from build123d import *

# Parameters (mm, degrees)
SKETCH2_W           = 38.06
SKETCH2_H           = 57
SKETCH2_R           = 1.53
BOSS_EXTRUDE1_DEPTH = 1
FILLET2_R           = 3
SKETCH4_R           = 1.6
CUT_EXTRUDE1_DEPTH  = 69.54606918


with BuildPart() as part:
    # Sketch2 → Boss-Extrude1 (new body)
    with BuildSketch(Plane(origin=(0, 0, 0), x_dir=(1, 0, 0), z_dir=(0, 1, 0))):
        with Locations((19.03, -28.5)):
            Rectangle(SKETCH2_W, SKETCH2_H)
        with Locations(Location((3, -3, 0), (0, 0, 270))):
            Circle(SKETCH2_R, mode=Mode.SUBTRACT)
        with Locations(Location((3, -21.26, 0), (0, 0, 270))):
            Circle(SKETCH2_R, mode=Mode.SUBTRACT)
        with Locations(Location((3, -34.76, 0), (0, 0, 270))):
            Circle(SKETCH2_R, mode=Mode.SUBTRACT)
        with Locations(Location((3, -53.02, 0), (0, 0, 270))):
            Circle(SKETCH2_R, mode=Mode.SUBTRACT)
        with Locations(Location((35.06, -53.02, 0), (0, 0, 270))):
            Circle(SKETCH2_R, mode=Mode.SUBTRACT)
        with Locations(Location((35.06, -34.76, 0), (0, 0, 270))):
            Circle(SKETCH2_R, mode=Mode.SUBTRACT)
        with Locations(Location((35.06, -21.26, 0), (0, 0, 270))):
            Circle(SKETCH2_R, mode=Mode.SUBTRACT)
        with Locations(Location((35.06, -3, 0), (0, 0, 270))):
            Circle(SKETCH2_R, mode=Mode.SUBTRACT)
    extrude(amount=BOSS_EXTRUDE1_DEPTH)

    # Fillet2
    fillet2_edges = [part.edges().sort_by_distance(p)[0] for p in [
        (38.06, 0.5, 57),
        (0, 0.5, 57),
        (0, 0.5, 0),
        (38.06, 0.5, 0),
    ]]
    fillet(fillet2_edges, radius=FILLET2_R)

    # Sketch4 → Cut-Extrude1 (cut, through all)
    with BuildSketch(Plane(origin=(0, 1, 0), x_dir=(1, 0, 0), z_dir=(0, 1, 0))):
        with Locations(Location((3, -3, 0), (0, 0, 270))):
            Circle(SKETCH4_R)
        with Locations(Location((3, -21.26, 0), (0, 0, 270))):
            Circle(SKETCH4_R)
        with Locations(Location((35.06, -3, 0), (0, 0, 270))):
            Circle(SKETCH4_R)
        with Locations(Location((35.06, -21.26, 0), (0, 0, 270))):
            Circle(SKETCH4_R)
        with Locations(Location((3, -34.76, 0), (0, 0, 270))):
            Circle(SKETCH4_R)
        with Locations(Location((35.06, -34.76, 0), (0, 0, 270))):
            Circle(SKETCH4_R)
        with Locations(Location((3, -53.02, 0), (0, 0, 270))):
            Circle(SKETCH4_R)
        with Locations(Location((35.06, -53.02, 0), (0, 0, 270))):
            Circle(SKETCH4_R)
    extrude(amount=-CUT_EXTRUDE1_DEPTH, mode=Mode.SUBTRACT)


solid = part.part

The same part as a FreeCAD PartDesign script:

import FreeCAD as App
import Part
import Sketcher
from FreeCAD import Vector
Q = App.Units.Quantity


def edges_at(feature, points):
    """Names of the edges that pass closest to the given points."""
    edges = feature.Shape.Edges
    near = lambda p: min(range(len(edges)), key=lambda i: edges[i].distToShape(Part.Vertex(*p))[0])
    return sorted({f"Edge{near(p) + 1}" for p in points})

doc = App.newDocument("Part")
body = doc.addObject("PartDesign::Body", "Body")

# Sketch on XZ plane
sketch1 = body.newObject("Sketcher::SketchObject", "Sketch")
sketch1.AttachmentSupport = (doc.getObject("XZ_Plane"), [""])
sketch1.MapMode = "FlatFace"
sketch1.addGeometry(Part.LineSegment(Vector(0, 0, 0), Vector(0, 57, 0)), False)
sketch1.addGeometry(Part.LineSegment(Vector(0, 57, 0), Vector(38.1, 57, 0)), False)
sketch1.addGeometry(Part.LineSegment(Vector(38.1, 57, 0), Vector(38.1, 0, 0)), False)
sketch1.addGeometry(Part.LineSegment(Vector(38.1, 0, 0), Vector(0, 0, 0)), False)
sketch1.addGeometry(Part.Circle(Vector(3, 53, 0), Vector(0, 0, 1), 1.5), False)
sketch1.addGeometry(Part.Circle(Vector(3, 34.8, 0), Vector(0, 0, 1), 1.5), False)
sketch1.addGeometry(Part.Circle(Vector(35.1, 53, 0), Vector(0, 0, 1), 1.5), False)
sketch1.addGeometry(Part.Circle(Vector(35.1, 34.8, 0), Vector(0, 0, 1), 1.5), False)
sketch1.addGeometry(Part.Circle(Vector(3, 21.3, 0), Vector(0, 0, 1), 1.5), False)
sketch1.addGeometry(Part.Circle(Vector(3, 3, 0), Vector(0, 0, 1), 1.5), False)
sketch1.addGeometry(Part.Circle(Vector(35.1, 21.3, 0), Vector(0, 0, 1), 1.5), False)
sketch1.addGeometry(Part.Circle(Vector(35.1, 3, 0), Vector(0, 0, 1), 1.5), False)
sketch1.addConstraint(Sketcher.Constraint("Coincident", 0, 2, 1, 1))
sketch1.addConstraint(Sketcher.Constraint("Coincident", 1, 2, 2, 1))
sketch1.addConstraint(Sketcher.Constraint("Coincident", 2, 2, 3, 1))
sketch1.addConstraint(Sketcher.Constraint("Coincident", 3, 2, 0, 1))
sketch1.addConstraint(Sketcher.Constraint("Vertical", 0))
sketch1.addConstraint(Sketcher.Constraint("Horizontal", 1))
sketch1.addConstraint(Sketcher.Constraint("Vertical", 2))
sketch1.addConstraint(Sketcher.Constraint("Horizontal", 3))
sketch1.addConstraint(Sketcher.Constraint("Coincident", 3, 2, -1, 1))
sketch1.addConstraint(Sketcher.Constraint("Equal", 4, 5))
sketch1.addConstraint(Sketcher.Constraint("Equal", 5, 6))
sketch1.addConstraint(Sketcher.Constraint("Equal", 6, 7))
sketch1.addConstraint(Sketcher.Constraint("Equal", 7, 8))
sketch1.addConstraint(Sketcher.Constraint("Equal", 8, 9))
sketch1.addConstraint(Sketcher.Constraint("Equal", 9, 10))
sketch1.addConstraint(Sketcher.Constraint("Equal", 10, 11))
sketch1.addConstraint(Sketcher.Constraint("Horizontal", 4, 3, 6, 3))
sketch1.addConstraint(Sketcher.Constraint("Horizontal", 5, 3, 7, 3))
sketch1.addConstraint(Sketcher.Constraint("Horizontal", 8, 3, 10, 3))
sketch1.addConstraint(Sketcher.Constraint("Horizontal", 9, 3, 11, 3))
sketch1.addConstraint(Sketcher.Constraint("Vertical", 4, 3, 5, 3))
sketch1.addConstraint(Sketcher.Constraint("Vertical", 6, 3, 7, 3))
sketch1.addConstraint(Sketcher.Constraint("Vertical", 5, 3, 8, 3))
sketch1.addConstraint(Sketcher.Constraint("Vertical", 8, 3, 9, 3))
sketch1.addConstraint(Sketcher.Constraint("Vertical", 7, 3, 10, 3))
sketch1.addConstraint(Sketcher.Constraint("Vertical", 10, 3, 11, 3))
sketch1.addConstraint(Sketcher.Constraint("Diameter", 4, Q("3.06 mm")))
sketch1.addConstraint(Sketcher.Constraint("DistanceY", 0, 1, 0, 2, Q("57 mm")))
sketch1.addConstraint(Sketcher.Constraint("DistanceX", -1, 1, 4, 3, Q("3 mm")))
sketch1.addConstraint(Sketcher.Constraint("DistanceY", -1, 1, 9, 3, Q("3 mm")))
sketch1.addConstraint(Sketcher.Constraint("DistanceX", 6, 3, 1, 2, Q("3 mm")))
sketch1.addConstraint(Sketcher.Constraint("DistanceX", 1, 1, 1, 2, Q("38.06 mm")))
sketch1.addConstraint(Sketcher.Constraint("DistanceY", 8, 3, 5, 3, Q("13.5 mm")))
sketch1.addConstraint(Sketcher.Constraint("DistanceY", -1, 1, 4, 3, Q("53.02 mm")))
sketch1.addConstraint(Sketcher.Constraint("DistanceY", -1, 1, 5, 3, Q("34.76 mm")))
pad1 = body.newObject("PartDesign::Pad", "Pad")
pad1.Profile = sketch1
pad1.Length = 1
pad1.Reversed = True
doc.recompute()

fillet = body.newObject("PartDesign::Fillet", "Fillet")
fillet.Base = (pad1, edges_at(pad1, [
    (38.06, 0.5, 57),
    (0, 0.5, 57),
    (0, 0.5, 0),
    (38.06, 0.5, 0),
]))
fillet.Radius = 3

# Sketch on XZ plane
sketch2 = body.newObject("Sketcher::SketchObject", "Sketch001")
sketch2.AttachmentSupport = (doc.getObject("XZ_Plane"), [""])
sketch2.MapMode = "FlatFace"
sketch2.AttachmentOffset = App.Placement(Vector(0, 0, -1), App.Rotation())
sketch2.addGeometry(Part.Circle(Vector(3, 3, 0), Vector(0, 0, 1), 1.6), False)
sketch2.addGeometry(Part.Circle(Vector(3, 21.3, 0), Vector(0, 0, 1), 1.6), False)
sketch2.addGeometry(Part.Circle(Vector(35.1, 3, 0), Vector(0, 0, 1), 1.6), False)
sketch2.addGeometry(Part.Circle(Vector(35.1, 21.3, 0), Vector(0, 0, 1), 1.6), False)
sketch2.addGeometry(Part.Circle(Vector(3, 34.8, 0), Vector(0, 0, 1), 1.6), False)
sketch2.addGeometry(Part.Circle(Vector(35.1, 34.8, 0), Vector(0, 0, 1), 1.6), False)
sketch2.addGeometry(Part.Circle(Vector(3, 53, 0), Vector(0, 0, 1), 1.6), False)
sketch2.addGeometry(Part.Circle(Vector(35.1, 53, 0), Vector(0, 0, 1), 1.6), False)
sketch2.addConstraint(Sketcher.Constraint("Equal", 0, 1))
sketch2.addConstraint(Sketcher.Constraint("Equal", 1, 2))
sketch2.addConstraint(Sketcher.Constraint("Equal", 2, 3))
sketch2.addConstraint(Sketcher.Constraint("Equal", 3, 4))
sketch2.addConstraint(Sketcher.Constraint("Equal", 4, 5))
sketch2.addConstraint(Sketcher.Constraint("Equal", 5, 6))
sketch2.addConstraint(Sketcher.Constraint("Equal", 6, 7))
sketch2.addConstraint(Sketcher.Constraint("Horizontal", 0, 3, 2, 3))
sketch2.addConstraint(Sketcher.Constraint("Horizontal", 1, 3, 3, 3))
sketch2.addConstraint(Sketcher.Constraint("Horizontal", 4, 3, 5, 3))
sketch2.addConstraint(Sketcher.Constraint("Horizontal", 6, 3, 7, 3))
sketch2.addConstraint(Sketcher.Constraint("Vertical", 0, 3, 1, 3))
sketch2.addConstraint(Sketcher.Constraint("Vertical", 2, 3, 3, 3))
sketch2.addConstraint(Sketcher.Constraint("Vertical", 1, 3, 4, 3))
sketch2.addConstraint(Sketcher.Constraint("Vertical", 3, 3, 5, 3))
sketch2.addConstraint(Sketcher.Constraint("Vertical", 4, 3, 6, 3))
sketch2.addConstraint(Sketcher.Constraint("Vertical", 5, 3, 7, 3))
sketch2.addConstraint(Sketcher.Constraint("Diameter", 0, Q("3.2 mm")))
sketch2.addConstraint(Sketcher.Constraint("DistanceX", -1, 1, 0, 3, Q("3 mm")))
sketch2.addConstraint(Sketcher.Constraint("DistanceY", -1, 1, 0, 3, Q("3 mm")))
sketch2.addConstraint(Sketcher.Constraint("DistanceY", 1, 3, 4, 3, Q("13.5 mm")))
sketch2.addConstraint(Sketcher.Constraint("DistanceY", -1, 1, 1, 3, Q("21.26 mm")))
sketch2.addConstraint(Sketcher.Constraint("DistanceX", -1, 1, 2, 3, Q("35.06 mm")))
sketch2.addConstraint(Sketcher.Constraint("DistanceY", -1, 1, 6, 3, Q("53.02 mm")))
pocket1 = body.newObject("PartDesign::Pocket", "Pocket")
pocket1.Profile = sketch2
pocket1.Type = "ThroughAll"
pocket1.Reversed = True

doc.recompute()
